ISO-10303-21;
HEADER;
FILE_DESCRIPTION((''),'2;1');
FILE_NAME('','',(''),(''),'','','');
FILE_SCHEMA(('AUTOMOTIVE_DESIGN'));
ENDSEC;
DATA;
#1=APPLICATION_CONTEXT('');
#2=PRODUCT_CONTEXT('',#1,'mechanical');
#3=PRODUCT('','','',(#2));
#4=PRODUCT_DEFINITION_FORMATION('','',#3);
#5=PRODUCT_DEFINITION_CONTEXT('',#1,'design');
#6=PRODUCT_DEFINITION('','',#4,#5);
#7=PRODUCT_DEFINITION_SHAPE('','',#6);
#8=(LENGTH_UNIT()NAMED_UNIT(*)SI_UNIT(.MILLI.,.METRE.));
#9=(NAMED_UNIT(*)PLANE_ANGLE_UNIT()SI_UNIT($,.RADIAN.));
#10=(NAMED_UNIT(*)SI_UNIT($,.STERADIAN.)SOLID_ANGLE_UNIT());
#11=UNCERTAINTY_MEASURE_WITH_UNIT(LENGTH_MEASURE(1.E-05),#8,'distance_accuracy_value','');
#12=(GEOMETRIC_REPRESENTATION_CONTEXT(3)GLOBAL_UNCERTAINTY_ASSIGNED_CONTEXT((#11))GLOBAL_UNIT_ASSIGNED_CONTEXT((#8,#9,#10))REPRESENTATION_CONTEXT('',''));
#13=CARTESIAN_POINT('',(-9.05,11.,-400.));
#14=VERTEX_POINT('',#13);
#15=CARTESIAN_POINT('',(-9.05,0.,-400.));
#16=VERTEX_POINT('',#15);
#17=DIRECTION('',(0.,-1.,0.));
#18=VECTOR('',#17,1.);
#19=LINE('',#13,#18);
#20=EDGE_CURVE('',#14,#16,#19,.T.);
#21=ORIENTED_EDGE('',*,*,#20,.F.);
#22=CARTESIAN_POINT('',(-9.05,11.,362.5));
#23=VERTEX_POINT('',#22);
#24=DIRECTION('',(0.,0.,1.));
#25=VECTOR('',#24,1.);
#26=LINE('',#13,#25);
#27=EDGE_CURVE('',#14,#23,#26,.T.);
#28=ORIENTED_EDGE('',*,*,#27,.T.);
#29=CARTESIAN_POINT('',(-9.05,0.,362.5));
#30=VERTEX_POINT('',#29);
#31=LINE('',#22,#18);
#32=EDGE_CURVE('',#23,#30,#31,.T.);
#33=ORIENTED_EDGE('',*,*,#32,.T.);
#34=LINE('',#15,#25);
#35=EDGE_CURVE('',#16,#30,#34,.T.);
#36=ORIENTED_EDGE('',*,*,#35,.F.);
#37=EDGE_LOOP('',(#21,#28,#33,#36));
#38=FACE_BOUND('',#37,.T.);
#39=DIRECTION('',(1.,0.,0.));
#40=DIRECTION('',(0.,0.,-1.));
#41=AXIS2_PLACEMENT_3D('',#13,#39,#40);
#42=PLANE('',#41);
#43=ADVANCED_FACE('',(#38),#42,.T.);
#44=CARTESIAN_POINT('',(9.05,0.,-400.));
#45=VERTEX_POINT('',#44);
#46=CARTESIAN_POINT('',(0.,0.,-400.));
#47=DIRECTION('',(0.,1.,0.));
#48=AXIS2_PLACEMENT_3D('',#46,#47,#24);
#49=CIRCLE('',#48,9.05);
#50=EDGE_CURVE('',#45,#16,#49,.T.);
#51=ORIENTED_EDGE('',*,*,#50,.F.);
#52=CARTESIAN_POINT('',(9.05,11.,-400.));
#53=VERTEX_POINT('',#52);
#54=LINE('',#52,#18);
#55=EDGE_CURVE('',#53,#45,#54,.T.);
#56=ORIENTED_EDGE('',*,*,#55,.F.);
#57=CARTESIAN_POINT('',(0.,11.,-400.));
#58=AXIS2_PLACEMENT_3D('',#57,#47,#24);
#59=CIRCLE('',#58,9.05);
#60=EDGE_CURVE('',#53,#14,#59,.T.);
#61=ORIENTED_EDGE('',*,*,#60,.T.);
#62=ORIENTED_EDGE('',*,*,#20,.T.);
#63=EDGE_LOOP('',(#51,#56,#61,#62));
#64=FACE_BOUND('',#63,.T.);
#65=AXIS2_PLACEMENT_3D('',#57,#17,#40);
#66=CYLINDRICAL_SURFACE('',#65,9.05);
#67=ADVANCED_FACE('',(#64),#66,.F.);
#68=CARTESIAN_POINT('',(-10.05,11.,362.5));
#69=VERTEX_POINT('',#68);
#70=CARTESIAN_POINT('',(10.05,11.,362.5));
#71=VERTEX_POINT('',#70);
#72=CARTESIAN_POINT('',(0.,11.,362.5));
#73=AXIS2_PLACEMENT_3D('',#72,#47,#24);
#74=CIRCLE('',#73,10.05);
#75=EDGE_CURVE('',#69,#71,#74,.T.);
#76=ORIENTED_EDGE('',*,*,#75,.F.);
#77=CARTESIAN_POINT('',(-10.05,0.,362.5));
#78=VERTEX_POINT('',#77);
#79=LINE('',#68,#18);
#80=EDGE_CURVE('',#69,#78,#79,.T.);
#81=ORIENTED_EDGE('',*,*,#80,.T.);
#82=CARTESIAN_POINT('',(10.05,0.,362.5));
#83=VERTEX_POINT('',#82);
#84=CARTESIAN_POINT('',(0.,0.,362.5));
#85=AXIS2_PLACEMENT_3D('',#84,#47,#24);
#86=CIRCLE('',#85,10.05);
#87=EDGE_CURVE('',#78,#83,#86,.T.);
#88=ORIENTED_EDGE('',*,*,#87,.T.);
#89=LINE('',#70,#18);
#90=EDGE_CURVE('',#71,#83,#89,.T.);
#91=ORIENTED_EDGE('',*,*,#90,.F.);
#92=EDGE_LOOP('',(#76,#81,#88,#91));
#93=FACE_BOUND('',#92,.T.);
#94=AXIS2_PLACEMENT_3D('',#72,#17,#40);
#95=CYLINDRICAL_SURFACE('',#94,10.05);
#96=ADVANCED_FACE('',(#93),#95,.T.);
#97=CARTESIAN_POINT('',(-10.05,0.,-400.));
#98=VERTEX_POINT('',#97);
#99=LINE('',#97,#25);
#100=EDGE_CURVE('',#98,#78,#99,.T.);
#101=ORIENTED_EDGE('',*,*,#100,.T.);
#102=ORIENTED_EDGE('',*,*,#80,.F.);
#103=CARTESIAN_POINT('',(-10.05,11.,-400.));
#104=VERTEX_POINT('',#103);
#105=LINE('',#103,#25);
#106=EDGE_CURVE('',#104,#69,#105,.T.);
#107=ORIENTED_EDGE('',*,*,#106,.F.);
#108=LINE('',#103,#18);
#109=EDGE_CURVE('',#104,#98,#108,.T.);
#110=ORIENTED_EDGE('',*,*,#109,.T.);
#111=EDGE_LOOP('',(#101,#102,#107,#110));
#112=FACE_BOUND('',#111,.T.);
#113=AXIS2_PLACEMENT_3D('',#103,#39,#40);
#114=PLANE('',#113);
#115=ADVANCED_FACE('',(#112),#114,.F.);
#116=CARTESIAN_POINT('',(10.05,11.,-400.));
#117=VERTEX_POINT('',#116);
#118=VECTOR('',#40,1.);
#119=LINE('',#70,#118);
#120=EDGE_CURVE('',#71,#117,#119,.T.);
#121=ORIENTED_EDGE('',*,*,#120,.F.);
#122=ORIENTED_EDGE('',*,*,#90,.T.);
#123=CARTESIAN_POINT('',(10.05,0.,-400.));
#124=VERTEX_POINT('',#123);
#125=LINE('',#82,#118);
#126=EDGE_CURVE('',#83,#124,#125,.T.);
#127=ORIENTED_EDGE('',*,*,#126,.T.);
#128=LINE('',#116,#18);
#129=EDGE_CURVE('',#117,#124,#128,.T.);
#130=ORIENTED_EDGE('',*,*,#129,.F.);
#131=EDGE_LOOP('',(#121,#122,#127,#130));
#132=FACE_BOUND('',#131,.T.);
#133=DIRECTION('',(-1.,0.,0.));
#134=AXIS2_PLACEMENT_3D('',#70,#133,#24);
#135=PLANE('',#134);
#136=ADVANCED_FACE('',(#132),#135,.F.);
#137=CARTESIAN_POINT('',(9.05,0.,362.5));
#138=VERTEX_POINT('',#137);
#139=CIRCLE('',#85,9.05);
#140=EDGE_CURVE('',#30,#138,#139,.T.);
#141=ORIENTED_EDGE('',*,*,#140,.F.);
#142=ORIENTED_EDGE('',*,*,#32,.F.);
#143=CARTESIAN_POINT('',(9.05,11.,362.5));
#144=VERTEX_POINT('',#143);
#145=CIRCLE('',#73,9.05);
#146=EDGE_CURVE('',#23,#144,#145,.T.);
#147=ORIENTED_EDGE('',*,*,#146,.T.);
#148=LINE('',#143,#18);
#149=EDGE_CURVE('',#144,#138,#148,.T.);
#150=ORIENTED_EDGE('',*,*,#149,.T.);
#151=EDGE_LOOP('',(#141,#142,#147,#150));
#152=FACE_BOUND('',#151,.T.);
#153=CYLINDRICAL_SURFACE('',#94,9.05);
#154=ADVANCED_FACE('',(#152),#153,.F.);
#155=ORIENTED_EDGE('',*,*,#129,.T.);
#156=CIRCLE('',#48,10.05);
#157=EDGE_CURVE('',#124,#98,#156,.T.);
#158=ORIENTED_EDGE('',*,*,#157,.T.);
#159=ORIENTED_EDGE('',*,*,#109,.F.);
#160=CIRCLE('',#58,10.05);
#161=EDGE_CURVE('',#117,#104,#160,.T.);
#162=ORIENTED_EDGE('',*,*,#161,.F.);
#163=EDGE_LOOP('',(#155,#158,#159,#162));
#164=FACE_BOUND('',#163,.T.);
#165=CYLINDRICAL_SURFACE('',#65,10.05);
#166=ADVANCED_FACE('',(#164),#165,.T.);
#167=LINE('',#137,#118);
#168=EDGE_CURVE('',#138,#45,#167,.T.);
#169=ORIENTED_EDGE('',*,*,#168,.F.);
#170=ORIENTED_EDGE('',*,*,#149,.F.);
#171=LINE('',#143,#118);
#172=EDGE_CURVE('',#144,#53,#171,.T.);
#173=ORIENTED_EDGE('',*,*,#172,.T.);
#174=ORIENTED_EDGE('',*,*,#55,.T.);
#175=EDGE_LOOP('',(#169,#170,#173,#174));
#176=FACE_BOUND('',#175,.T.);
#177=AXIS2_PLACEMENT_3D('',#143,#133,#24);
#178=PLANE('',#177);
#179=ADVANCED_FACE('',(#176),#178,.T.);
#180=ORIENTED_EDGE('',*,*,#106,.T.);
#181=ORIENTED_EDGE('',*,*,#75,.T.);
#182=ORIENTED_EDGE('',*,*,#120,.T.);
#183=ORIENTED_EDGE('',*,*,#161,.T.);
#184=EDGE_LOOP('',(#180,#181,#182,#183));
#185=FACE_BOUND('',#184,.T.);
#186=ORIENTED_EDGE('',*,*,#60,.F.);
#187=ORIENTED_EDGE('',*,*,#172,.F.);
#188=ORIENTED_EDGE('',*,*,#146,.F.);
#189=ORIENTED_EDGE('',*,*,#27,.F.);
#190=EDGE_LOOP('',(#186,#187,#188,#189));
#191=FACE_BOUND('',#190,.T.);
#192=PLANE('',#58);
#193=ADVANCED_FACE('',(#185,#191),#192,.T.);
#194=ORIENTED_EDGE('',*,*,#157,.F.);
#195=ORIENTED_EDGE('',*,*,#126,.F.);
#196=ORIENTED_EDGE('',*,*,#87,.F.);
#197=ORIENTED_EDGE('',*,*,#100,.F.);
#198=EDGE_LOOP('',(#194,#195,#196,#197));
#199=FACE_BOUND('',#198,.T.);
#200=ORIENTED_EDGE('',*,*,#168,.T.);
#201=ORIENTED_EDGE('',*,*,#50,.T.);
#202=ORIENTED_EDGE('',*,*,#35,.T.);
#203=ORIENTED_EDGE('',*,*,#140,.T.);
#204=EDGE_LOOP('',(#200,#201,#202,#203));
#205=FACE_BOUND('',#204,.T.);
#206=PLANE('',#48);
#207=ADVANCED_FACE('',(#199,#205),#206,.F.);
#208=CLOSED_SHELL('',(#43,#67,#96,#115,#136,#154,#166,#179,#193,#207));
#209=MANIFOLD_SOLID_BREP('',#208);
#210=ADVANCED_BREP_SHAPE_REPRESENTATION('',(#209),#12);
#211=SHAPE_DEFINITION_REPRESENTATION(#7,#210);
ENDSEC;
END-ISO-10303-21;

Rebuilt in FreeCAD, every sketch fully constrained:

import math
import FreeCAD as App
import Part
import Sketcher

doc = App.newDocument("Part")
params = doc.addObject("Spreadsheet::Sheet", "Params")
for row, (alias, value) in enumerate([
    ("sketch1_radius", "10.05 mm"),
    ("sketch1_radius2", "9.05 mm"),
    ("sketch1_height", "762.5 mm"),
    ("pad1_length", "11 mm"),
], start=1):
    params.set(f"A{row}", alias)
    params.set(f"B{row}", "=" + value)
    params.setAlias(f"B{row}", alias)

body = doc.addObject("PartDesign::Body", "Body")

# Sketch on XZ plane
sketch1 = body.newObject("Sketcher::SketchObject", "Sketch")
sketch1.AttachmentSupport = (doc.getObject("XZ_Plane"), [""])
sketch1.MapMode = "FlatFace"
sketch1.addGeometry([
    Part.LineSegment(App.Vector(-10, -400, 0), App.Vector(-10, 362, 0)),  # 0
    Part.ArcOfCircle(Part.Circle(App.Vector(0, 362, 0), App.Vector(0, 0, 1), 10), math.radians(0), math.radians(180)),  # 1
    Part.LineSegment(App.Vector(10, 362, 0), App.Vector(10, -400, 0)),  # 2
    Part.ArcOfCircle(Part.Circle(App.Vector(0, -400, 0), App.Vector(0, 0, 1), 10), math.radians(180), math.radians(360)),  # 3
    Part.LineSegment(App.Vector(-9, 362, 0), App.Vector(-9, -400, 0)),  # 4
    Part.ArcOfCircle(Part.Circle(App.Vector(0, -400, 0), App.Vector(0, 0, 1), 9), math.radians(180), math.radians(360)),  # 5
    Part.LineSegment(App.Vector(9, -400, 0), App.Vector(9, 362, 0)),  # 6
    Part.ArcOfCircle(Part.Circle(App.Vector(0, 362, 0), App.Vector(0, 0, 1), 9), math.radians(0), math.radians(180)),  # 7
], False)
sketch1.addConstraint([
    Sketcher.Constraint("Tangent", 0, 2, 1, 2),
    Sketcher.Constraint("Tangent", 1, 1, 2, 1),
    Sketcher.Constraint("Tangent", 2, 2, 3, 2),
    Sketcher.Constraint("Tangent", 3, 1, 0, 1),
    Sketcher.Constraint("Tangent", 4, 2, 5, 1),
    Sketcher.Constraint("Tangent", 5, 2, 6, 1),
    Sketcher.Constraint("Tangent", 6, 2, 7, 1),
    Sketcher.Constraint("Tangent", 7, 2, 4, 1),
    Sketcher.Constraint("Vertical", 0),
    Sketcher.Constraint("Vertical", 2),
    Sketcher.Constraint("Vertical", 4),
    Sketcher.Constraint("Vertical", 6),
    Sketcher.Constraint("Coincident", 5, 3, 3, 3),
    Sketcher.Constraint("PointOnObject", 1, 3, -2),
    Sketcher.Constraint("Horizontal", 7, 3, 0, 2),
    Sketcher.Constraint("Radius", 1, 10.05),
    Sketcher.Constraint("Radius", 5, 9.05),
    Sketcher.Constraint("DistanceY", 0, 1, 0, 2, 762.5),
    Sketcher.Constraint("DistanceY", 3, 3, -1, 1, 400.0),
])
sketch1.setExpression("Constraints[15]", "Params.sketch1_radius")
sketch1.setExpression("Constraints[16]", "Params.sketch1_radius2")
sketch1.setExpression("Constraints[17]", "Params.sketch1_height")
pad1 = body.newObject("PartDesign::Pad", "Pad")
pad1.Profile = sketch1
pad1.setExpression("Length", "Params.pad1_length")
pad1.Reversed = True

doc.recompute()
